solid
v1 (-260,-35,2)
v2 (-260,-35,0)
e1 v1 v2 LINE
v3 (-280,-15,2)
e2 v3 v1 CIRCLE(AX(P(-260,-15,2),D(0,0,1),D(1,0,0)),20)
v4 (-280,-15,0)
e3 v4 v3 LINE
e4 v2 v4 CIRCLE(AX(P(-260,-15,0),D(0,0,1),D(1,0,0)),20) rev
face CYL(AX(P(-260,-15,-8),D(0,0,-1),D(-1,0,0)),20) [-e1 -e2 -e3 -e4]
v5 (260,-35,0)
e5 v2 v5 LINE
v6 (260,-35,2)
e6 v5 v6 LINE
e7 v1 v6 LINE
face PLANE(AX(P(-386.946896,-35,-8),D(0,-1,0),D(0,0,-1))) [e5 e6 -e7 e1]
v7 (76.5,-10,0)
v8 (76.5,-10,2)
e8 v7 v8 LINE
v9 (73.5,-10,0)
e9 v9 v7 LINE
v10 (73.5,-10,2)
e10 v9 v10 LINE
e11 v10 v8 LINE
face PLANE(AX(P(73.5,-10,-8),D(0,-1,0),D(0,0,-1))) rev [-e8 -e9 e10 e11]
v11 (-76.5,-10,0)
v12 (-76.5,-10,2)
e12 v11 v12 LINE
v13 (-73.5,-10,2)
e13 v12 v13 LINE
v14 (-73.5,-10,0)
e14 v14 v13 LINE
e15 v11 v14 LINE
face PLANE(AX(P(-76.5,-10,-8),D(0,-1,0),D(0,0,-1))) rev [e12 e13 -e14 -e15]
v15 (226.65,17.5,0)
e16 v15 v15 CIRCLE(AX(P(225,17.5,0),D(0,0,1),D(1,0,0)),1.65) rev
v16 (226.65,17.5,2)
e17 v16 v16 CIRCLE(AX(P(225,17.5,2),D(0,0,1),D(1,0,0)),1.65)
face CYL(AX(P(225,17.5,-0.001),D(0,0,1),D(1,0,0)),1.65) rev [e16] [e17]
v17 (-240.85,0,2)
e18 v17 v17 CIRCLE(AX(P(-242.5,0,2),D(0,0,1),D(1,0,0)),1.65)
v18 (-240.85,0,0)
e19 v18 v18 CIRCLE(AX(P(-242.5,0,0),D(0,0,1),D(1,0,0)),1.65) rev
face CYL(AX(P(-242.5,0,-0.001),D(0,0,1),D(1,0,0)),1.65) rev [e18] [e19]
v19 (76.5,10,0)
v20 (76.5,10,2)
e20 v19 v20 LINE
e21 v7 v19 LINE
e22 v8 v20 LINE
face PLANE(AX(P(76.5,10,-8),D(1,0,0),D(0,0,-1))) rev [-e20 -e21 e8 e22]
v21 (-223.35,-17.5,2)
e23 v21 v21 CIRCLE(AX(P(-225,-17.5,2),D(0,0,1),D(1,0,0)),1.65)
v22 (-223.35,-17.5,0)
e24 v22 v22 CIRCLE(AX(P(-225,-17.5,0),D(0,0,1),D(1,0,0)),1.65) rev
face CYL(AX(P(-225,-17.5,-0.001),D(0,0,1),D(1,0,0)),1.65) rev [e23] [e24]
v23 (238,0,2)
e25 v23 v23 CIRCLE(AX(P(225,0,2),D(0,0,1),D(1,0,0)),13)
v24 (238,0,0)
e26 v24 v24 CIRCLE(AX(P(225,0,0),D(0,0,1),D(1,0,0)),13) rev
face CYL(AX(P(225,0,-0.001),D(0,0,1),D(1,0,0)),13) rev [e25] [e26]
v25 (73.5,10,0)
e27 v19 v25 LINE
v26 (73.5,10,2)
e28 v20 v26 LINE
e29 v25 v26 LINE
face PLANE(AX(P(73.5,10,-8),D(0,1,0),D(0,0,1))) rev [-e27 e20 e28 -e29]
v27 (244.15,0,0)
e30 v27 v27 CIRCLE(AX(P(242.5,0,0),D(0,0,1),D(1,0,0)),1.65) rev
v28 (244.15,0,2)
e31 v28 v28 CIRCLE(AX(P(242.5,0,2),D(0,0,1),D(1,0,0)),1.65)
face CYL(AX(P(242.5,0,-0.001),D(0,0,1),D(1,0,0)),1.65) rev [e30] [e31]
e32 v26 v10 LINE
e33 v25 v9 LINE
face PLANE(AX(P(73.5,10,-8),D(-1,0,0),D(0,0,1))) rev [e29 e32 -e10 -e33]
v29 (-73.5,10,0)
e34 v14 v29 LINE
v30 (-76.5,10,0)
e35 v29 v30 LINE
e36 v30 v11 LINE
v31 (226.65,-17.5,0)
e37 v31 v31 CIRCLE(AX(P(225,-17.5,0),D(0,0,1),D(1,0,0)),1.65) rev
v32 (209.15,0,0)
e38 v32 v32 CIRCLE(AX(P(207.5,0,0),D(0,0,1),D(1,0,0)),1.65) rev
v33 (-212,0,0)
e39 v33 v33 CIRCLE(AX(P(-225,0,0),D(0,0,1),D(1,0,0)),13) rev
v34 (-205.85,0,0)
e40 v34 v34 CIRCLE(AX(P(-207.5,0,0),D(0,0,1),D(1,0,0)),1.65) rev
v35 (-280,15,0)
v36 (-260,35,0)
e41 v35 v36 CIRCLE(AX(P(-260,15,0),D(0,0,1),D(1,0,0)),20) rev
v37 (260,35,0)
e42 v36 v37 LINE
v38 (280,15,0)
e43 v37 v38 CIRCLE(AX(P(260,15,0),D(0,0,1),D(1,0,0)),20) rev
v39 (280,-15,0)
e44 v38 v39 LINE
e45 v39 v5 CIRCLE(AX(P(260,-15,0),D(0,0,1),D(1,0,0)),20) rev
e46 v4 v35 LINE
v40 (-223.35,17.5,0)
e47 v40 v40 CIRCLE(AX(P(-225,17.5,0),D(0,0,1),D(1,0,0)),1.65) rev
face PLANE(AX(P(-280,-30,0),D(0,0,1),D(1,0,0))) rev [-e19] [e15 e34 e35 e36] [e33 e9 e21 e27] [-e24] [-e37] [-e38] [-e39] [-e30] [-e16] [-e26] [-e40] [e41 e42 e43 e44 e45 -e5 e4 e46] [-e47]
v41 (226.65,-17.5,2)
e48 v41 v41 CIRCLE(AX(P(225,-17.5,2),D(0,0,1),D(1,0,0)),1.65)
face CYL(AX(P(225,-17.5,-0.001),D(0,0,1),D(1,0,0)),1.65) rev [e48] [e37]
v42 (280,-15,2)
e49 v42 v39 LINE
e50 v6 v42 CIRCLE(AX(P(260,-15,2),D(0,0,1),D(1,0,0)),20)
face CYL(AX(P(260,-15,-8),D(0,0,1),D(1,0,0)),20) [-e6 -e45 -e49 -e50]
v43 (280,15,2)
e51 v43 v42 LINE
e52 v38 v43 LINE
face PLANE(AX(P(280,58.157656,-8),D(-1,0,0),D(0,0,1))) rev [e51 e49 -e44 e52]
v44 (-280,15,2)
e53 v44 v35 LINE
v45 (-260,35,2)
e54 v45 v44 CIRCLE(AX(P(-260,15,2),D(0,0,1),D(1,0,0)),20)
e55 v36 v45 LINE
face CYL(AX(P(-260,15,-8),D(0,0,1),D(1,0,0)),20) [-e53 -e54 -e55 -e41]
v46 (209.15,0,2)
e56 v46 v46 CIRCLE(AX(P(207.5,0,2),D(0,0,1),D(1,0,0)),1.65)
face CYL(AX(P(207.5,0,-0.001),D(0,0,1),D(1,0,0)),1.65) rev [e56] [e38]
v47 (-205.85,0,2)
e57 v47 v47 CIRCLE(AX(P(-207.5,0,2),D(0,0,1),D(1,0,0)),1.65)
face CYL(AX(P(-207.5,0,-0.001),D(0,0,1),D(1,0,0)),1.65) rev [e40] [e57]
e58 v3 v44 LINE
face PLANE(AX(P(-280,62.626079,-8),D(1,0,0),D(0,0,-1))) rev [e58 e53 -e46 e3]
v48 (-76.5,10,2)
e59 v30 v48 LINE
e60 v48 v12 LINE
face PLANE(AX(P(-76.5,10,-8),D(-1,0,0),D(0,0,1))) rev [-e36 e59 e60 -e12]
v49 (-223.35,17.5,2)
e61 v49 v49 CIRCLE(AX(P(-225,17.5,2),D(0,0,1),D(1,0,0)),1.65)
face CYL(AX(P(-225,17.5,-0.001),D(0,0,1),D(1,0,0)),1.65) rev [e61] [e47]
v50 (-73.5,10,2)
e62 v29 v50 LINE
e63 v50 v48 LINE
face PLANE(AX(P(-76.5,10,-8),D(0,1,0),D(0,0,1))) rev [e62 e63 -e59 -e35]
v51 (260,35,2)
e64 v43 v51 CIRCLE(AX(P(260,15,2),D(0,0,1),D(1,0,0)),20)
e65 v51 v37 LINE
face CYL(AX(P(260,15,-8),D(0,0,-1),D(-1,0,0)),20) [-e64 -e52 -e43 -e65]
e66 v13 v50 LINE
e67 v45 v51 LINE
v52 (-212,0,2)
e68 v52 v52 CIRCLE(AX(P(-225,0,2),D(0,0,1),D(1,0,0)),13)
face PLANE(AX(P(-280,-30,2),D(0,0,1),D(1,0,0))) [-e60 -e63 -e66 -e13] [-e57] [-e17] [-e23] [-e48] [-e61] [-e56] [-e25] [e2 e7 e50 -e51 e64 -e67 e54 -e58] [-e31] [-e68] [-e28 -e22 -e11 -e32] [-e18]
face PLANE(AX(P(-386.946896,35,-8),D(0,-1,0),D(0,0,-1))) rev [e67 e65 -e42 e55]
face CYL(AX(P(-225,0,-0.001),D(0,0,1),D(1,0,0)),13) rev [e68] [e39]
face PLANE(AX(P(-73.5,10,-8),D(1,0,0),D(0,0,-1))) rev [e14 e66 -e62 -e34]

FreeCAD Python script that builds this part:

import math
import FreeCAD as App
import Part
import Sketcher

V = App.Vector


def edges_at(feature, points):
    """Names of the edges that pass closest to the given points."""
    edges = feature.Shape.Edges
    near = lambda p: min(range(len(edges)), key=lambda i: edges[i].distToShape(Part.Vertex(*p))[0])
    return sorted({f"Edge{near(p) + 1}" for p in points})


def add_polygon(sketch, points):
    """Adds a closed chain of lines whose ends are joined by coincident constraints."""
    first, n = sketch.GeometryCount, len(points)
    for a, b in zip(points, points[1:] + points[:1]):
        sketch.addGeometry(Part.LineSegment(App.Vector(*a, 0), App.Vector(*b, 0)), False)
    for i in range(n):
        sketch.addConstraint(Sketcher.Constraint("Coincident", first + i, 2, first + (i + 1) % n, 1))

doc = App.newDocument("Part")
body = doc.addObject("PartDesign::Body", "Body")

# Sketch on XY plane
sketch1 = body.newObject("Sketcher::SketchObject", "Sketch")
sketch1.AttachmentSupport = (doc.getObject("XY_Plane"), [""])
sketch1.MapMode = "FlatFace"
sketch1.addGeometry(Part.LineSegment(V(280, 50, 0), V(-280, 50, 0)), False)
sketch1.addGeometry(Part.ArcOfCircle(Part.Circle(V(-280, 30, 0), V(0, 0, 1), 20), math.radians(90), math.radians(180)), False)
sketch1.addGeometry(Part.LineSegment(V(-300, 30, 0), V(-300, -30, 0)), False)
sketch1.addGeometry(Part.ArcOfCircle(Part.Circle(V(-280, -30, 0), V(0, 0, 1), 20), math.radians(180), math.radians(270)), False)
sketch1.addGeometry(Part.LineSegment(V(-280, -50, 0), V(280, -50, 0)), False)
sketch1.addGeometry(Part.ArcOfCircle(Part.Circle(V(280, -30, 0), V(0, 0, 1), 20), math.radians(-90), math.radians(0)), False)
sketch1.addGeometry(Part.LineSegment(V(300, -30, 0), V(300, 30, 0)), False)
sketch1.addGeometry(Part.ArcOfCircle(Part.Circle(V(280, 30, 0), V(0, 0, 1), 20), math.radians(0), math.radians(90)), False)
sketch1.addConstraint(Sketcher.Constraint("Tangent", 0, 2, 1, 1))
sketch1.addConstraint(Sketcher.Constraint("Tangent", 1, 2, 2, 1))
sketch1.addConstraint(Sketcher.Constraint("Tangent", 2, 2, 3, 1))
sketch1.addConstraint(Sketcher.Constraint("Tangent", 3, 2, 4, 1))
sketch1.addConstraint(Sketcher.Constraint("Tangent", 4, 2, 5, 1))
sketch1.addConstraint(Sketcher.Constraint("Tangent", 5, 2, 6, 1))
sketch1.addConstraint(Sketcher.Constraint("Tangent", 6, 2, 7, 1))
sketch1.addConstraint(Sketcher.Constraint("Tangent", 7, 2, 0, 1))
sketch1.addConstraint(Sketcher.Constraint("Horizontal", 0))
sketch1.addConstraint(Sketcher.Constraint("Vertical", 2))
sketch1.addConstraint(Sketcher.Constraint("Horizontal", 4))
sketch1.addConstraint(Sketcher.Constraint("Vertical", 6))
sketch1.addConstraint(Sketcher.Constraint("Equal", 1, 3))
sketch1.addConstraint(Sketcher.Constraint("Equal", 3, 5))
sketch1.addConstraint(Sketcher.Constraint("Equal", 5, 7))
sketch1.addConstraint(Sketcher.Constraint("Symmetric", 1, 3, 5, 3, -1, 1))
sketch1.addConstraint(Sketcher.Constraint("Radius", 1, 20.0))
sketch1.addConstraint(Sketcher.Constraint("DistanceX", 0, 2, 0, 1, 560.0))
sketch1.addConstraint(Sketcher.Constraint("DistanceY", 2, 2, 2, 1, 60.0))
pad1 = body.newObject("PartDesign::Pad", "Pad")
pad1.Profile = sketch1
pad1.Length = 2

# Sketch on XY plane
sketch2 = body.newObject("Sketcher::SketchObject", "Sketch001")
sketch2.AttachmentSupport = (doc.getObject("XY_Plane"), [""])
sketch2.MapMode = "FlatFace"
sketch2.AttachmentOffset = App.Placement(V(0, 0, 2), App.Rotation())
sketch2.addGeometry(Part.Circle(V(-225, 0, 0), V(0, 0, 1), 13), False)
sketch2.addConstraint(Sketcher.Constraint("PointOnObject", 0, 3, -1))
sketch2.addConstraint(Sketcher.Constraint("Diameter", 0, 26.0))
sketch2.addConstraint(Sketcher.Constraint("DistanceX", 0, 3, -1, 1, 225.0))
pocket1 = body.newObject("PartDesign::Pocket", "Pocket")
pocket1.Profile = sketch2
pocket1.Type = "UpToFirst"

# Sketch on XY plane
sketch3 = body.newObject("Sketcher::SketchObject", "Sketch002")
sketch3.AttachmentSupport = (doc.getObject("XY_Plane"), [""])
sketch3.MapMode = "FlatFace"
sketch3.AttachmentOffset = App.Placement(V(0, 0, 2), App.Rotation())
sketch3.addGeometry(Part.Circle(V(225, 0, 0), V(0, 0, 1), 13), False)
sketch3.addConstraint(Sketcher.Constraint("PointOnObject", 0, 3, -1))
sketch3.addConstraint(Sketcher.Constraint("Diameter", 0, 26.0))
sketch3.addConstraint(Sketcher.Constraint("DistanceX", -1, 1, 0, 3, 225.0))
pocket2 = body.newObject("PartDesign::Pocket", "Pocket001")
pocket2.Profile = sketch3
pocket2.Type = "UpToFirst"

# Sketch on XY plane
sketch4 = body.newObject("Sketcher::SketchObject", "Sketch003")
sketch4.AttachmentSupport = (doc.getObject("XY_Plane"), [""])
sketch4.MapMode = "FlatFace"
sketch4.AttachmentOffset = App.Placement(V(0, 0, 2), App.Rotation())
sketch4.addGeometry(Part.Circle(V(-242.5, 0, 0), V(0, 0, 1), 1.6), False)
sketch4.addConstraint(Sketcher.Constraint("PointOnObject", 0, 3, -1))
sketch4.addConstraint(Sketcher.Constraint("Diameter", 0, 3.3))
sketch4.addConstraint(Sketcher.Constraint("DistanceX", 0, 3, -1, 1, 242.5))
pocket3 = body.newObject("PartDesign::Pocket", "Pocket002")
pocket3.Profile = sketch4
pocket3.Type = "UpToFirst"

# Sketch on XY plane
sketch5 = body.newObject("Sketcher::SketchObject", "Sketch004")
sketch5.AttachmentSupport = (doc.getObject("XY_Plane"), [""])
sketch5.MapMode = "FlatFace"
sketch5.AttachmentOffset = App.Placement(V(0, 0, 2), App.Rotation())
sketch5.addGeometry(Part.Circle(V(-207.5, 0, 0), V(0, 0, 1), 1.6), False)
sketch5.addConstraint(Sketcher.Constraint("PointOnObject", 0, 3, -1))
sketch5.addConstraint(Sketcher.Constraint("Diameter", 0, 3.3))
sketch5.addConstraint(Sketcher.Constraint("DistanceX", 0, 3, -1, 1, 207.5))
pocket4 = body.newObject("PartDesign::Pocket", "Pocket003")
pocket4.Profile = sketch5
pocket4.Type = "UpToFirst"

# Sketch on XY plane
sketch6 = body.newObject("Sketcher::SketchObject", "Sketch005")
sketch6.AttachmentSupport = (doc.getObject("XY_Plane"), [""])
sketch6.MapMode = "FlatFace"
sketch6.AttachmentOffset = App.Placement(V(0, 0, 2), App.Rotation())
sketch6.addGeometry(Part.Circle(V(-225, 17.5, 0), V(0, 0, 1), 1.6), False)
sketch6.addConstraint(Sketcher.Constraint("Diameter", 0, 3.3))
sketch6.addConstraint(Sketcher.Constraint("DistanceX", 0, 3, -1, 1, 225.0))
sketch6.addConstraint(Sketcher.Constraint("DistanceY", -1, 1, 0, 3, 17.5))
pocket5 = body.newObject("PartDesign::Pocket", "Pocket004")
pocket5.Profile = sketch6
pocket5.Type = "UpToFirst"

# Sketch on XY plane
sketch7 = body.newObject("Sketcher::SketchObject", "Sketch006")
sketch7.AttachmentSupport = (doc.getObject("XY_Plane"), [""])
sketch7.MapMode = "FlatFace"
sketch7.AttachmentOffset = App.Placement(V(0, 0, 2), App.Rotation())
sketch7.addGeometry(Part.Circle(V(-225, -17.5, 0), V(0, 0, 1), 1.6), False)
sketch7.addConstraint(Sketcher.Constraint("Diameter", 0, 3.3))
sketch7.addConstraint(Sketcher.Constraint("DistanceX", 0, 3, -1, 1, 225.0))
sketch7.addConstraint(Sketcher.Constraint("DistanceY", 0, 3, -1, 1, 17.5))
pocket6 = body.newObject("PartDesign::Pocket", "Pocket005")
pocket6.Profile = sketch7
pocket6.Type = "UpToFirst"

# Sketch on XY plane
sketch8 = body.newObject("Sketcher::SketchObject", "Sketch007")
sketch8.AttachmentSupport = (doc.getObject("XY_Plane"), [""])
sketch8.MapMode = "FlatFace"
sketch8.AttachmentOffset = App.Placement(V(0, 0, 2), App.Rotation())
sketch8.addGeometry(Part.Circle(V(242.5, 0, 0), V(0, 0, 1), 1.6), False)
sketch8.addConstraint(Sketcher.Constraint("PointOnObject", 0, 3, -1))
sketch8.addConstraint(Sketcher.Constraint("Diameter", 0, 3.3))
sketch8.addConstraint(Sketcher.Constraint("DistanceX", -1, 1, 0, 3, 242.5))
pocket7 = body.newObject("PartDesign::Pocket", "Pocket006")
pocket7.Profile = sketch8
pocket7.Type = "UpToFirst"

# Sketch on XY plane
sketch9 = body.newObject("Sketcher::SketchObject", "Sketch008")
sketch9.AttachmentSupport = (doc.getObject("XY_Plane"), [""])
sketch9.MapMode = "FlatFace"
sketch9.AttachmentOffset = App.Placement(V(0, 0, 2), App.Rotation())
sketch9.addGeometry(Part.Circle(V(225, 17.5, 0), V(0, 0, 1), 1.6), False)
sketch9.addConstraint(Sketcher.Constraint("Diameter", 0, 3.3))
sketch9.addConstraint(Sketcher.Constraint("DistanceX", -1, 1, 0, 3, 225.0))
sketch9.addConstraint(Sketcher.Constraint("DistanceY", -1, 1, 0, 3, 17.5))
pocket8 = body.newObject("PartDesign::Pocket", "Pocket007")
pocket8.Profile = sketch9
pocket8.Type = "UpToFirst"

# Sketch on XY plane
sketch10 = body.newObject("Sketcher::SketchObject", "Sketch009")
sketch10.AttachmentSupport = (doc.getObject("XY_Plane"), [""])
sketch10.MapMode = "FlatFace"
sketch10.AttachmentOffset = App.Placement(V(0, 0, 2), App.Rotation())
sketch10.addGeometry(Part.Circle(V(207.5, 0, 0), V(0, 0, 1), 1.6), False)
sketch10.addConstraint(Sketcher.Constraint("PointOnObject", 0, 3, -1))
sketch10.addConstraint(Sketcher.Constraint("Diameter", 0, 3.3))
sketch10.addConstraint(Sketcher.Constraint("DistanceX", -1, 1, 0, 3, 207.5))
pocket9 = body.newObject("PartDesign::Pocket", "Pocket008")
pocket9.Profile = sketch10
pocket9.Type = "UpToFirst"

# Sketch on XY plane
sketch11 = body.newObject("Sketcher::SketchObject", "Sketch010")
sketch11.AttachmentSupport = (doc.getObject("XY_Plane"), [""])
sketch11.MapMode = "FlatFace"
sketch11.AttachmentOffset = App.Placement(V(0, 0, 2), App.Rotation())
sketch11.addGeometry(Part.Circle(V(225, -17.5, 0), V(0, 0, 1), 1.6), False)
sketch11.addConstraint(Sketcher.Constraint("Diameter", 0, 3.3))
sketch11.addConstraint(Sketcher.Constraint("DistanceX", -1, 1, 0, 3, 225.0))
sketch11.addConstraint(Sketcher.Constraint("DistanceY", 0, 3, -1, 1, 17.5))
pocket10 = body.newObject("PartDesign::Pocket", "Pocket009")
pocket10.Profile = sketch11
pocket10.Type = "UpToFirst"

# Sketch on XY plane
sketch12 = body.newObject("Sketcher::SketchObject", "Sketch011")
sketch12.AttachmentSupport = (doc.getObject("XY_Plane"), [""])
sketch12.MapMode = "FlatFace"
sketch12.AttachmentOffset = App.Placement(V(0, 0, 2), App.Rotation())
add_polygon(sketch12, [(-362, -35), (-362, -112), (362, -112), (362, -35)])  # lines 0-3
add_polygon(sketch12, [(-362, 112), (-362, 35), (362, 35), (362, 112)])  # lines 4-7
sketch12.addConstraint(Sketcher.Constraint("Vertical", 0))
sketch12.addConstraint(Sketcher.Constraint("Horizontal", 1))
sketch12.addConstraint(Sketcher.Constraint("Vertical", 2))
sketch12.addConstraint(Sketcher.Constraint("Horizontal", 3))
sketch12.addConstraint(Sketcher.Constraint("Vertical", 4))
sketch12.addConstraint(Sketcher.Constraint("Horizontal", 5))
sketch12.addConstraint(Sketcher.Constraint("Vertical", 6))
sketch12.addConstraint(Sketcher.Constraint("Horizontal", 7))
sketch12.addConstraint(Sketcher.Constraint("Symmetric", 2, 2, 4, 2, -1, 1))
sketch12.addConstraint(Sketcher.Constraint("Symmetric", 0, 2, 6, 2, -1, 1))
sketch12.addConstraint(Sketcher.Constraint("Vertical", 3, 2, 4, 2))
sketch12.addConstraint(Sketcher.Constraint("DistanceY", 2, 2, -1, 1, 35.0))
sketch12.addConstraint(Sketcher.Constraint("DistanceX", 1, 1, 1, 2, 723.656))
sketch12.addConstraint(Sketcher.Constraint("DistanceY", 0, 2, 0, 1, 76.828))
pocket11 = body.newObject("PartDesign::Pocket", "Pocket010")
pocket11.Profile = sketch12
pocket11.Length = 10

# Sketch on XY plane
sketch13 = body.newObject("Sketcher::SketchObject", "Sketch012")
sketch13.AttachmentSupport = (doc.getObject("XY_Plane"), [""])
sketch13.MapMode = "FlatFace"
sketch13.AttachmentOffset = App.Placement(V(0, 0, 2), App.Rotation())
add_polygon(sketch13, [(-320, 63), (-320, -63), (-280, -63), (-280, 63)])  # lines 0-3
add_polygon(sketch13, [(280, 58), (280, -58), (320, -58), (320, 58)])  # lines 4-7
sketch13.addConstraint(Sketcher.Constraint("Vertical", 0))
sketch13.addConstraint(Sketcher.Constraint("Horizontal", 1))
sketch13.addConstraint(Sketcher.Constraint("Vertical", 2))
sketch13.addConstraint(Sketcher.Constraint("Horizontal", 3))
sketch13.addConstraint(Sketcher.Constraint("Vertical", 4))
sketch13.addConstraint(Sketcher.Constraint("Horizontal", 5))
sketch13.addConstraint(Sketcher.Constraint("Vertical", 6))
sketch13.addConstraint(Sketcher.Constraint("Horizontal", 7))
sketch13.addConstraint(Sketcher.Constraint("Equal", 3, 5))
sketch13.addConstraint(Sketcher.Constraint("DistanceX", 1, 1, 1, 2, 40.0))
sketch13.addConstraint(Sketcher.Constraint("DistanceX", 0, 2, -1, 1, 320.0))
sketch13.addConstraint(Sketcher.Constraint("DistanceX", -1, 1, 4, 2, 280.0))
sketch13.addConstraint(Sketcher.Constraint("DistanceY", 4, 2, 4, 1, 116.315311))
sketch13.addConstraint(Sketcher.Constraint("DistanceY", 0, 2, 0, 1, 125.252158))
sketch13.addConstraint(Sketcher.Constraint("DistanceY", 0, 2, -1, 1, 62.626079))
sketch13.addConstraint(Sketcher.Constraint("DistanceY", 4, 2, -1, 1, 58.157656))
pocket12 = body.newObject("PartDesign::Pocket", "Pocket011")
pocket12.Profile = sketch13
pocket12.Length = 10
doc.recompute()

fillet = body.newObject("PartDesign::Fillet", "Fillet")
fillet.Base = (pocket12, edges_at(pocket12, [
    (-280, 35, 1),
    (-280, -35, 1),
    (280, 35, 1),
    (280, -35, 1),
]))
fillet.Radius = 20

# Sketch on XY plane
sketch14 = body.newObject("Sketcher::SketchObject", "Sketch013")
sketch14.AttachmentSupport = (doc.getObject("XY_Plane"), [""])
sketch14.MapMode = "FlatFace"
sketch14.AttachmentOffset = App.Placement(V(0, 0, 2), App.Rotation())
add_polygon(sketch14, [(-76.5, 10), (-76.5, -10), (-73.5, -10), (-73.5, 10)])  # lines 0-3
add_polygon(sketch14, [(73.5, 10), (73.5, -10), (76.5, -10), (76.5, 10)])  # lines 4-7
sketch14.addConstraint(Sketcher.Constraint("Vertical", 0))
sketch14.addConstraint(Sketcher.Constraint("Horizontal", 1))
sketch14.addConstraint(Sketcher.Constraint("Vertical", 2))
sketch14.addConstraint(Sketcher.Constraint("Horizontal", 3))
sketch14.addConstraint(Sketcher.Constraint("Vertical", 4))
sketch14.addConstraint(Sketcher.Constraint("Horizontal", 5))
sketch14.addConstraint(Sketcher.Constraint("Vertical", 6))
sketch14.addConstraint(Sketcher.Constraint("Horizontal", 7))
sketch14.addConstraint(Sketcher.Constraint("Symmetric", 2, 2, 4, 2, -1, 1))
sketch14.addConstraint(Sketcher.Constraint("Symmetric", 0, 2, 6, 2, -1, 1))
sketch14.addConstraint(Sketcher.Constraint("Horizontal", 1, 2, 4, 2))
sketch14.addConstraint(Sketcher.Constraint("DistanceX", 1, 1, 1, 2, 3.0))
sketch14.addConstraint(Sketcher.Constraint("DistanceY", 0, 2, 0, 1, 20.0))
sketch14.addConstraint(Sketcher.Constraint("DistanceX", 1, 2, 4, 2, 147.0))
pocket13 = body.newObject("PartDesign::Pocket", "Pocket012")
pocket13.Profile = sketch14
pocket13.Length = 10

doc.recompute()
